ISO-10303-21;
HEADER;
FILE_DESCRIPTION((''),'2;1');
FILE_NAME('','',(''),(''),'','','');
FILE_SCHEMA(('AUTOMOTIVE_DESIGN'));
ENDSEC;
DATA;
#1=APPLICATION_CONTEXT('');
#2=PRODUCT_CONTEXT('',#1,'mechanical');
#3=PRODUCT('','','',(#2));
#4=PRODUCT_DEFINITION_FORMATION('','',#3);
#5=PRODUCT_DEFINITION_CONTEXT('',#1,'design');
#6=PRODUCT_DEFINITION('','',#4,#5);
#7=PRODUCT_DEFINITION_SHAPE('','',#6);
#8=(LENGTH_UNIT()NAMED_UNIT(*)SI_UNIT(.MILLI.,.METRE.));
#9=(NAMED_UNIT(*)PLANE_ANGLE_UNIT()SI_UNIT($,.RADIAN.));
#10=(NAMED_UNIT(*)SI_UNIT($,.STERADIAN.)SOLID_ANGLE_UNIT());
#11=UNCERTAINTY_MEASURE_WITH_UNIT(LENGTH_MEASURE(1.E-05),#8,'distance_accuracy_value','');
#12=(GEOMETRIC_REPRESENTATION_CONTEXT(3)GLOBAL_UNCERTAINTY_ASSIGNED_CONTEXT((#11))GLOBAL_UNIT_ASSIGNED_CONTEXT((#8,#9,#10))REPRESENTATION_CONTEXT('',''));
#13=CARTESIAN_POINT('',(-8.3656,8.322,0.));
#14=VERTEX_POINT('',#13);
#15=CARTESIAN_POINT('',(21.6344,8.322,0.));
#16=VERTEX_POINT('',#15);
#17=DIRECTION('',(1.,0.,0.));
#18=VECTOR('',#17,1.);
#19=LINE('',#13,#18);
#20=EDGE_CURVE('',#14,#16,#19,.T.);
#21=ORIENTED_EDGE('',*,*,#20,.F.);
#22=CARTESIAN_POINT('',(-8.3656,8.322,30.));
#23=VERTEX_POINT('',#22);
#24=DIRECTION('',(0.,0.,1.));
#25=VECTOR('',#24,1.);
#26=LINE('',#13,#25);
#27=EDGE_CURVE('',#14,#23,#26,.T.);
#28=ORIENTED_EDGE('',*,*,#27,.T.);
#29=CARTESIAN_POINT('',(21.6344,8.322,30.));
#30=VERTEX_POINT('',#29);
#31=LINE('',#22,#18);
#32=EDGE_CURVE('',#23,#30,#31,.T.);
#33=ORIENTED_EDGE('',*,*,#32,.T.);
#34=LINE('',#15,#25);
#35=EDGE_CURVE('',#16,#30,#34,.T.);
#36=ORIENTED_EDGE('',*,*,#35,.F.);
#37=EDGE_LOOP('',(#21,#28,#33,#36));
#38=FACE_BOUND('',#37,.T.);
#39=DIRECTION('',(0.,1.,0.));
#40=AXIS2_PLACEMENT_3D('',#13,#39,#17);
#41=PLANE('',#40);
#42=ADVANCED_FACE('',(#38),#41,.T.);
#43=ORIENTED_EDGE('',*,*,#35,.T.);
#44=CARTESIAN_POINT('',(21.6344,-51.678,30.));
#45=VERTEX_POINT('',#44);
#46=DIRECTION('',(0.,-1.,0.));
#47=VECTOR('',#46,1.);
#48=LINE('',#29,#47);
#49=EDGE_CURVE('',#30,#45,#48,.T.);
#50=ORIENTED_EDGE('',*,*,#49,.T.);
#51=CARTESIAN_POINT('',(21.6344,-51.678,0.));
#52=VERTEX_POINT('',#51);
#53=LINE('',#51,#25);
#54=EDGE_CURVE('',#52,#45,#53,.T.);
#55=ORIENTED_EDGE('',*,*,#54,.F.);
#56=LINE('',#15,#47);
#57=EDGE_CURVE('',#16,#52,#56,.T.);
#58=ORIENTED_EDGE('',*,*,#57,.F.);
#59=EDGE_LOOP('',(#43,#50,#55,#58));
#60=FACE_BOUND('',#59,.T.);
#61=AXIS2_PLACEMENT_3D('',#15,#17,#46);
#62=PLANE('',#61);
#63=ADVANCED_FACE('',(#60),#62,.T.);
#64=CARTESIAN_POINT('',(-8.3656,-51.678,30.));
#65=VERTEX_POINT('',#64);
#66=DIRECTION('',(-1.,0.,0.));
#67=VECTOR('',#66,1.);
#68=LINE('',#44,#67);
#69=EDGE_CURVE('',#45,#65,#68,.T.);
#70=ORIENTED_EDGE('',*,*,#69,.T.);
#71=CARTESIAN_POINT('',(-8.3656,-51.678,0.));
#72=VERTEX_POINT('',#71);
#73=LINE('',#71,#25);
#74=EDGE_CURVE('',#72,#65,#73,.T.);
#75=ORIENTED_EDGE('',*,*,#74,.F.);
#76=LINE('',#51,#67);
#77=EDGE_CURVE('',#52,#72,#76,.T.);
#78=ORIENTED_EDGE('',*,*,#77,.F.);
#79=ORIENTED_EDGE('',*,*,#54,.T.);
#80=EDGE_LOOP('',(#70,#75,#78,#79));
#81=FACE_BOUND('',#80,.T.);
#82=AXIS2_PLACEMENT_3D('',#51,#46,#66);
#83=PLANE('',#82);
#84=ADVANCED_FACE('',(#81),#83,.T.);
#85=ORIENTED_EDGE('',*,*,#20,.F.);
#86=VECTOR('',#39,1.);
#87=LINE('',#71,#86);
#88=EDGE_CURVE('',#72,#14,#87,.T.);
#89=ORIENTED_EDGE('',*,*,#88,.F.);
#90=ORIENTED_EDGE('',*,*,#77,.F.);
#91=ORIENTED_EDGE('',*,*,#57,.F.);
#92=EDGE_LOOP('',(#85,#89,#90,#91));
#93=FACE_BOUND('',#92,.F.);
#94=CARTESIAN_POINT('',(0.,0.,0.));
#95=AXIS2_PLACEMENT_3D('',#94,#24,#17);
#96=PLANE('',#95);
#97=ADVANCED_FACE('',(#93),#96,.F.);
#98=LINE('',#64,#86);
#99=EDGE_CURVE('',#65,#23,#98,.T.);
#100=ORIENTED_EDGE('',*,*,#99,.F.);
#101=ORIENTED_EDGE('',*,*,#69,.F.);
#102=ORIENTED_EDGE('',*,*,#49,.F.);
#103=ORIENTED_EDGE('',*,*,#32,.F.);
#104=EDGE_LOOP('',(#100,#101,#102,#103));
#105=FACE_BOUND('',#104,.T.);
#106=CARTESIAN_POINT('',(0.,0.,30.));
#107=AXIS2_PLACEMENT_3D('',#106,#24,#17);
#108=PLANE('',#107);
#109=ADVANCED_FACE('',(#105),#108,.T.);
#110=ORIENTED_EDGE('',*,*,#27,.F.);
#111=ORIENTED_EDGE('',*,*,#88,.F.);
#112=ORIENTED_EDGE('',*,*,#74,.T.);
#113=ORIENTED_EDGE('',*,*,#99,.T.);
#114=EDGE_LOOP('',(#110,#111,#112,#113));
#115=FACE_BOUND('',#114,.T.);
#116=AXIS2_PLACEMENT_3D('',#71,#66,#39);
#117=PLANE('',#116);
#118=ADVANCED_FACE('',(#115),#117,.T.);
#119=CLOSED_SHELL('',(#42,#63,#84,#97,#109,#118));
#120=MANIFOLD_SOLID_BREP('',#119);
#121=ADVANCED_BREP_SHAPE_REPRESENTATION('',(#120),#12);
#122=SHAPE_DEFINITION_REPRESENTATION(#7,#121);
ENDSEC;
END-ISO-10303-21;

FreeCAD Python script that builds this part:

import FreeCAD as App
import Part
import Sketcher
from FreeCAD import Vector
Q = App.Units.Quantity

doc = App.newDocument("Part")
params = doc.addObject("Spreadsheet::Sheet", "Params")
for row, (alias, value) in enumerate([
    ("sketch1_width", "30 mm"),
    ("sketch1_height", "60 mm"),
    ("pad1_length", "30 mm"),
], start=1):
    params.set(f"A{row}", alias)
    params.set(f"B{row}", "=" + value)
    params.setAlias(f"B{row}", alias)

body = doc.addObject("PartDesign::Body", "Body")

sketch1 = body.newObject("Sketcher::SketchObject", "Sketch")
sketch1.AttachmentSupport = (doc.getObject("XY_Plane"), [""])
sketch1.MapMode = "FlatFace"
sketch1.addGeometry(Part.LineSegment(Vector(22, 8, 0), Vector(-8, 8, 0)), False)
sketch1.addGeometry(Part.LineSegment(Vector(-8, 8, 0), Vector(-8, -52, 0)), False)
sketch1.addGeometry(Part.LineSegment(Vector(-8, -52, 0), Vector(22, -52, 0)), False)
sketch1.addGeometry(Part.LineSegment(Vector(22, -52, 0), Vector(22, 8, 0)), False)
sketch1.addConstraint(Sketcher.Constraint("Coincident", 0, 2, 1, 1))
sketch1.addConstraint(Sketcher.Constraint("Coincident", 1, 2, 2, 1))
sketch1.addConstraint(Sketcher.Constraint("Coincident", 2, 2, 3, 1))
sketch1.addConstraint(Sketcher.Constraint("Coincident", 3, 2, 0, 1))
sketch1.addConstraint(Sketcher.Constraint("Horizontal", 0))
sketch1.addConstraint(Sketcher.Constraint("Vertical", 1))
sketch1.addConstraint(Sketcher.Constraint("Horizontal", 2))
sketch1.addConstraint(Sketcher.Constraint("Vertical", 3))
sketch1.addConstraint(Sketcher.Constraint("DistanceX", 0, 2, 0, 1, Q("30 mm")))
sketch1.addConstraint(Sketcher.Constraint("DistanceY", 1, 2, 1, 1, Q("60 mm")))
sketch1.addConstraint(Sketcher.Constraint("DistanceY", -1, 1, 0, 2, Q("8.322 mm")))
sketch1.addConstraint(Sketcher.Constraint("DistanceX", 0, 2, -1, 1, Q("8.3656 mm")))
sketch1.setExpression("Constraints[8]", "Params.sketch1_width")
sketch1.setExpression("Constraints[9]", "Params.sketch1_height")
pad1 = body.newObject("PartDesign::Pad", "Pad")
pad1.Profile = sketch1
pad1.setExpression("Length", "Params.pad1_length")

doc.recompute()
